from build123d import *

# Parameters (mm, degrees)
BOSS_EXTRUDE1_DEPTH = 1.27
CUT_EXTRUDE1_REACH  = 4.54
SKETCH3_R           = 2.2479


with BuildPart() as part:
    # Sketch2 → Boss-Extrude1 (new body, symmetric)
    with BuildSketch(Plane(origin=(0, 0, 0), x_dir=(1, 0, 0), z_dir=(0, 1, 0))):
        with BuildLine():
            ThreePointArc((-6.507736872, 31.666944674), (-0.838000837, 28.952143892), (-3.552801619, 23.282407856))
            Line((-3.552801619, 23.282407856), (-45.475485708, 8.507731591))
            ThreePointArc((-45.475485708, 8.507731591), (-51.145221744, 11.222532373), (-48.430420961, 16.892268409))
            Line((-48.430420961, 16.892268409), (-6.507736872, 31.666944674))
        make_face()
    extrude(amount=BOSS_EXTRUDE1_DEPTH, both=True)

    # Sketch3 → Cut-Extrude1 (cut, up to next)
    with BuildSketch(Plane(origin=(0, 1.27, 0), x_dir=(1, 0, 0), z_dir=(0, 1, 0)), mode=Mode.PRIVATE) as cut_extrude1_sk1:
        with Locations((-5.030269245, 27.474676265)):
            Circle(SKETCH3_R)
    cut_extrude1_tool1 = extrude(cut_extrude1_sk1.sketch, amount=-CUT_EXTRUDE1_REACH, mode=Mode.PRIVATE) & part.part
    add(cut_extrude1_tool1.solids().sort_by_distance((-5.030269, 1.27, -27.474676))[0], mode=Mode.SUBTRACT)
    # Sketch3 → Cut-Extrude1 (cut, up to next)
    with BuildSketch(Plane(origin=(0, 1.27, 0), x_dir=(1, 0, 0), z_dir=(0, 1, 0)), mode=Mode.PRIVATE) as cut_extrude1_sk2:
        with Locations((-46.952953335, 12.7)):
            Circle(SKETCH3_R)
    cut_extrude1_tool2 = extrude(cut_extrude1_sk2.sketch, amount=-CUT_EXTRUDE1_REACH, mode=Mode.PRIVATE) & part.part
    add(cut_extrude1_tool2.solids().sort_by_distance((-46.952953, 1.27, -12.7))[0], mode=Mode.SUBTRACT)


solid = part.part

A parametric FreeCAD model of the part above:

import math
import FreeCAD as App
import Part
import Sketcher

V = App.Vector
Q = App.Units.Quantity

doc = App.newDocument("Part")
body = doc.addObject("PartDesign::Body", "Body")

sketch1 = body.newObject("Sketcher::SketchObject", "Sketch")
sketch1.AttachmentSupport = (doc.getObject("XZ_Plane"), [""])
sketch1.MapMode = "FlatFace"
sketch1.addGeometry([
    Part.ArcOfCircle(Part.Circle(V(-5, -27.5, 0), V(0, 0, 1), 4.4), math.radians(-109), math.radians(71)),
    Part.LineSegment(V(-6.5, -31.7, 0), V(-48.4, -16.9, 0)),
    Part.ArcOfCircle(Part.Circle(V(-47, -12.7, 0), V(0, 0, 1), 4.4), math.radians(71), math.radians(251)),
    Part.LineSegment(V(-45.5, -8.5, 0), V(-3.6, -23.3, 0)),
], False)
sketch1.addConstraint([
    Sketcher.Constraint("Tangent", 0, 1, 1, 1),
    Sketcher.Constraint("Tangent", 1, 2, 2, 2),
    Sketcher.Constraint("Tangent", 2, 1, 3, 1),
    Sketcher.Constraint("Tangent", 3, 2, 0, 2),
    Sketcher.Constraint("Equal", 0, 2),
    Sketcher.Constraint("Radius", 0, Q("0.175 in")),
    Sketcher.Constraint("DistanceY", 2, 3, -1, 1, Q("0.5 in")),
    Sketcher.Constraint("Distance", 1, Q("1.75 in")),
    Sketcher.Constraint("DistanceY", 1, 2, 2, 1, Q("0.3300999 in")),
    Sketcher.Constraint("DistanceX", 3, 2, -1, 1, Q("3.552802 mm")),
])
pad1 = body.newObject("PartDesign::Pad", "Pad")
pad1.Profile = sketch1
pad1.Length = Q("0.1 in")
pad1.Midplane = True

sketch2 = body.newObject("Sketcher::SketchObject", "Sketch001")
sketch2.AttachmentSupport = (doc.getObject("XZ_Plane"), [""])
sketch2.MapMode = "FlatFace"
sketch2.AttachmentOffset = App.Placement(V(0, 0, -0.05 * 25.4), App.Rotation())
sketch2.addGeometry(Part.Circle(V(-5, -27.5, 0), V(0, 0, 1), 2.2), False)
sketch2.addConstraint([
    Sketcher.Constraint("Diameter", 0, Q("0.177 in")),
    Sketcher.Constraint("DistanceX", 0, 3, -1, 1, Q("5.030269 mm")),
    Sketcher.Constraint("DistanceY", 0, 3, -1, 1, Q("27.474676 mm")),
])
pocket1 = body.newObject("PartDesign::Pocket", "Pocket")
pocket1.Profile = sketch2
pocket1.Type = "UpToFirst"
pocket1.Reversed = True

sketch3 = body.newObject("Sketcher::SketchObject", "Sketch002")
sketch3.AttachmentSupport = (doc.getObject("XZ_Plane"), [""])
sketch3.MapMode = "FlatFace"
sketch3.AttachmentOffset = App.Placement(V(0, 0, -0.05 * 25.4), App.Rotation())
sketch3.addGeometry(Part.Circle(V(-47, -12.7, 0), V(0, 0, 1), 2.2), False)
sketch3.addConstraint([
    Sketcher.Constraint("Diameter", 0, Q("0.177 in")),
    Sketcher.Constraint("DistanceY", 0, 3, -1, 1, Q("0.5 in")),
    Sketcher.Constraint("DistanceX", 0, 3, -1, 1, Q("46.952953 mm")),
])
pocket2 = body.newObject("PartDesign::Pocket", "Pocket001")
pocket2.Profile = sketch3
pocket2.Type = "UpToFirst"
pocket2.Reversed = True

doc.recompute()
